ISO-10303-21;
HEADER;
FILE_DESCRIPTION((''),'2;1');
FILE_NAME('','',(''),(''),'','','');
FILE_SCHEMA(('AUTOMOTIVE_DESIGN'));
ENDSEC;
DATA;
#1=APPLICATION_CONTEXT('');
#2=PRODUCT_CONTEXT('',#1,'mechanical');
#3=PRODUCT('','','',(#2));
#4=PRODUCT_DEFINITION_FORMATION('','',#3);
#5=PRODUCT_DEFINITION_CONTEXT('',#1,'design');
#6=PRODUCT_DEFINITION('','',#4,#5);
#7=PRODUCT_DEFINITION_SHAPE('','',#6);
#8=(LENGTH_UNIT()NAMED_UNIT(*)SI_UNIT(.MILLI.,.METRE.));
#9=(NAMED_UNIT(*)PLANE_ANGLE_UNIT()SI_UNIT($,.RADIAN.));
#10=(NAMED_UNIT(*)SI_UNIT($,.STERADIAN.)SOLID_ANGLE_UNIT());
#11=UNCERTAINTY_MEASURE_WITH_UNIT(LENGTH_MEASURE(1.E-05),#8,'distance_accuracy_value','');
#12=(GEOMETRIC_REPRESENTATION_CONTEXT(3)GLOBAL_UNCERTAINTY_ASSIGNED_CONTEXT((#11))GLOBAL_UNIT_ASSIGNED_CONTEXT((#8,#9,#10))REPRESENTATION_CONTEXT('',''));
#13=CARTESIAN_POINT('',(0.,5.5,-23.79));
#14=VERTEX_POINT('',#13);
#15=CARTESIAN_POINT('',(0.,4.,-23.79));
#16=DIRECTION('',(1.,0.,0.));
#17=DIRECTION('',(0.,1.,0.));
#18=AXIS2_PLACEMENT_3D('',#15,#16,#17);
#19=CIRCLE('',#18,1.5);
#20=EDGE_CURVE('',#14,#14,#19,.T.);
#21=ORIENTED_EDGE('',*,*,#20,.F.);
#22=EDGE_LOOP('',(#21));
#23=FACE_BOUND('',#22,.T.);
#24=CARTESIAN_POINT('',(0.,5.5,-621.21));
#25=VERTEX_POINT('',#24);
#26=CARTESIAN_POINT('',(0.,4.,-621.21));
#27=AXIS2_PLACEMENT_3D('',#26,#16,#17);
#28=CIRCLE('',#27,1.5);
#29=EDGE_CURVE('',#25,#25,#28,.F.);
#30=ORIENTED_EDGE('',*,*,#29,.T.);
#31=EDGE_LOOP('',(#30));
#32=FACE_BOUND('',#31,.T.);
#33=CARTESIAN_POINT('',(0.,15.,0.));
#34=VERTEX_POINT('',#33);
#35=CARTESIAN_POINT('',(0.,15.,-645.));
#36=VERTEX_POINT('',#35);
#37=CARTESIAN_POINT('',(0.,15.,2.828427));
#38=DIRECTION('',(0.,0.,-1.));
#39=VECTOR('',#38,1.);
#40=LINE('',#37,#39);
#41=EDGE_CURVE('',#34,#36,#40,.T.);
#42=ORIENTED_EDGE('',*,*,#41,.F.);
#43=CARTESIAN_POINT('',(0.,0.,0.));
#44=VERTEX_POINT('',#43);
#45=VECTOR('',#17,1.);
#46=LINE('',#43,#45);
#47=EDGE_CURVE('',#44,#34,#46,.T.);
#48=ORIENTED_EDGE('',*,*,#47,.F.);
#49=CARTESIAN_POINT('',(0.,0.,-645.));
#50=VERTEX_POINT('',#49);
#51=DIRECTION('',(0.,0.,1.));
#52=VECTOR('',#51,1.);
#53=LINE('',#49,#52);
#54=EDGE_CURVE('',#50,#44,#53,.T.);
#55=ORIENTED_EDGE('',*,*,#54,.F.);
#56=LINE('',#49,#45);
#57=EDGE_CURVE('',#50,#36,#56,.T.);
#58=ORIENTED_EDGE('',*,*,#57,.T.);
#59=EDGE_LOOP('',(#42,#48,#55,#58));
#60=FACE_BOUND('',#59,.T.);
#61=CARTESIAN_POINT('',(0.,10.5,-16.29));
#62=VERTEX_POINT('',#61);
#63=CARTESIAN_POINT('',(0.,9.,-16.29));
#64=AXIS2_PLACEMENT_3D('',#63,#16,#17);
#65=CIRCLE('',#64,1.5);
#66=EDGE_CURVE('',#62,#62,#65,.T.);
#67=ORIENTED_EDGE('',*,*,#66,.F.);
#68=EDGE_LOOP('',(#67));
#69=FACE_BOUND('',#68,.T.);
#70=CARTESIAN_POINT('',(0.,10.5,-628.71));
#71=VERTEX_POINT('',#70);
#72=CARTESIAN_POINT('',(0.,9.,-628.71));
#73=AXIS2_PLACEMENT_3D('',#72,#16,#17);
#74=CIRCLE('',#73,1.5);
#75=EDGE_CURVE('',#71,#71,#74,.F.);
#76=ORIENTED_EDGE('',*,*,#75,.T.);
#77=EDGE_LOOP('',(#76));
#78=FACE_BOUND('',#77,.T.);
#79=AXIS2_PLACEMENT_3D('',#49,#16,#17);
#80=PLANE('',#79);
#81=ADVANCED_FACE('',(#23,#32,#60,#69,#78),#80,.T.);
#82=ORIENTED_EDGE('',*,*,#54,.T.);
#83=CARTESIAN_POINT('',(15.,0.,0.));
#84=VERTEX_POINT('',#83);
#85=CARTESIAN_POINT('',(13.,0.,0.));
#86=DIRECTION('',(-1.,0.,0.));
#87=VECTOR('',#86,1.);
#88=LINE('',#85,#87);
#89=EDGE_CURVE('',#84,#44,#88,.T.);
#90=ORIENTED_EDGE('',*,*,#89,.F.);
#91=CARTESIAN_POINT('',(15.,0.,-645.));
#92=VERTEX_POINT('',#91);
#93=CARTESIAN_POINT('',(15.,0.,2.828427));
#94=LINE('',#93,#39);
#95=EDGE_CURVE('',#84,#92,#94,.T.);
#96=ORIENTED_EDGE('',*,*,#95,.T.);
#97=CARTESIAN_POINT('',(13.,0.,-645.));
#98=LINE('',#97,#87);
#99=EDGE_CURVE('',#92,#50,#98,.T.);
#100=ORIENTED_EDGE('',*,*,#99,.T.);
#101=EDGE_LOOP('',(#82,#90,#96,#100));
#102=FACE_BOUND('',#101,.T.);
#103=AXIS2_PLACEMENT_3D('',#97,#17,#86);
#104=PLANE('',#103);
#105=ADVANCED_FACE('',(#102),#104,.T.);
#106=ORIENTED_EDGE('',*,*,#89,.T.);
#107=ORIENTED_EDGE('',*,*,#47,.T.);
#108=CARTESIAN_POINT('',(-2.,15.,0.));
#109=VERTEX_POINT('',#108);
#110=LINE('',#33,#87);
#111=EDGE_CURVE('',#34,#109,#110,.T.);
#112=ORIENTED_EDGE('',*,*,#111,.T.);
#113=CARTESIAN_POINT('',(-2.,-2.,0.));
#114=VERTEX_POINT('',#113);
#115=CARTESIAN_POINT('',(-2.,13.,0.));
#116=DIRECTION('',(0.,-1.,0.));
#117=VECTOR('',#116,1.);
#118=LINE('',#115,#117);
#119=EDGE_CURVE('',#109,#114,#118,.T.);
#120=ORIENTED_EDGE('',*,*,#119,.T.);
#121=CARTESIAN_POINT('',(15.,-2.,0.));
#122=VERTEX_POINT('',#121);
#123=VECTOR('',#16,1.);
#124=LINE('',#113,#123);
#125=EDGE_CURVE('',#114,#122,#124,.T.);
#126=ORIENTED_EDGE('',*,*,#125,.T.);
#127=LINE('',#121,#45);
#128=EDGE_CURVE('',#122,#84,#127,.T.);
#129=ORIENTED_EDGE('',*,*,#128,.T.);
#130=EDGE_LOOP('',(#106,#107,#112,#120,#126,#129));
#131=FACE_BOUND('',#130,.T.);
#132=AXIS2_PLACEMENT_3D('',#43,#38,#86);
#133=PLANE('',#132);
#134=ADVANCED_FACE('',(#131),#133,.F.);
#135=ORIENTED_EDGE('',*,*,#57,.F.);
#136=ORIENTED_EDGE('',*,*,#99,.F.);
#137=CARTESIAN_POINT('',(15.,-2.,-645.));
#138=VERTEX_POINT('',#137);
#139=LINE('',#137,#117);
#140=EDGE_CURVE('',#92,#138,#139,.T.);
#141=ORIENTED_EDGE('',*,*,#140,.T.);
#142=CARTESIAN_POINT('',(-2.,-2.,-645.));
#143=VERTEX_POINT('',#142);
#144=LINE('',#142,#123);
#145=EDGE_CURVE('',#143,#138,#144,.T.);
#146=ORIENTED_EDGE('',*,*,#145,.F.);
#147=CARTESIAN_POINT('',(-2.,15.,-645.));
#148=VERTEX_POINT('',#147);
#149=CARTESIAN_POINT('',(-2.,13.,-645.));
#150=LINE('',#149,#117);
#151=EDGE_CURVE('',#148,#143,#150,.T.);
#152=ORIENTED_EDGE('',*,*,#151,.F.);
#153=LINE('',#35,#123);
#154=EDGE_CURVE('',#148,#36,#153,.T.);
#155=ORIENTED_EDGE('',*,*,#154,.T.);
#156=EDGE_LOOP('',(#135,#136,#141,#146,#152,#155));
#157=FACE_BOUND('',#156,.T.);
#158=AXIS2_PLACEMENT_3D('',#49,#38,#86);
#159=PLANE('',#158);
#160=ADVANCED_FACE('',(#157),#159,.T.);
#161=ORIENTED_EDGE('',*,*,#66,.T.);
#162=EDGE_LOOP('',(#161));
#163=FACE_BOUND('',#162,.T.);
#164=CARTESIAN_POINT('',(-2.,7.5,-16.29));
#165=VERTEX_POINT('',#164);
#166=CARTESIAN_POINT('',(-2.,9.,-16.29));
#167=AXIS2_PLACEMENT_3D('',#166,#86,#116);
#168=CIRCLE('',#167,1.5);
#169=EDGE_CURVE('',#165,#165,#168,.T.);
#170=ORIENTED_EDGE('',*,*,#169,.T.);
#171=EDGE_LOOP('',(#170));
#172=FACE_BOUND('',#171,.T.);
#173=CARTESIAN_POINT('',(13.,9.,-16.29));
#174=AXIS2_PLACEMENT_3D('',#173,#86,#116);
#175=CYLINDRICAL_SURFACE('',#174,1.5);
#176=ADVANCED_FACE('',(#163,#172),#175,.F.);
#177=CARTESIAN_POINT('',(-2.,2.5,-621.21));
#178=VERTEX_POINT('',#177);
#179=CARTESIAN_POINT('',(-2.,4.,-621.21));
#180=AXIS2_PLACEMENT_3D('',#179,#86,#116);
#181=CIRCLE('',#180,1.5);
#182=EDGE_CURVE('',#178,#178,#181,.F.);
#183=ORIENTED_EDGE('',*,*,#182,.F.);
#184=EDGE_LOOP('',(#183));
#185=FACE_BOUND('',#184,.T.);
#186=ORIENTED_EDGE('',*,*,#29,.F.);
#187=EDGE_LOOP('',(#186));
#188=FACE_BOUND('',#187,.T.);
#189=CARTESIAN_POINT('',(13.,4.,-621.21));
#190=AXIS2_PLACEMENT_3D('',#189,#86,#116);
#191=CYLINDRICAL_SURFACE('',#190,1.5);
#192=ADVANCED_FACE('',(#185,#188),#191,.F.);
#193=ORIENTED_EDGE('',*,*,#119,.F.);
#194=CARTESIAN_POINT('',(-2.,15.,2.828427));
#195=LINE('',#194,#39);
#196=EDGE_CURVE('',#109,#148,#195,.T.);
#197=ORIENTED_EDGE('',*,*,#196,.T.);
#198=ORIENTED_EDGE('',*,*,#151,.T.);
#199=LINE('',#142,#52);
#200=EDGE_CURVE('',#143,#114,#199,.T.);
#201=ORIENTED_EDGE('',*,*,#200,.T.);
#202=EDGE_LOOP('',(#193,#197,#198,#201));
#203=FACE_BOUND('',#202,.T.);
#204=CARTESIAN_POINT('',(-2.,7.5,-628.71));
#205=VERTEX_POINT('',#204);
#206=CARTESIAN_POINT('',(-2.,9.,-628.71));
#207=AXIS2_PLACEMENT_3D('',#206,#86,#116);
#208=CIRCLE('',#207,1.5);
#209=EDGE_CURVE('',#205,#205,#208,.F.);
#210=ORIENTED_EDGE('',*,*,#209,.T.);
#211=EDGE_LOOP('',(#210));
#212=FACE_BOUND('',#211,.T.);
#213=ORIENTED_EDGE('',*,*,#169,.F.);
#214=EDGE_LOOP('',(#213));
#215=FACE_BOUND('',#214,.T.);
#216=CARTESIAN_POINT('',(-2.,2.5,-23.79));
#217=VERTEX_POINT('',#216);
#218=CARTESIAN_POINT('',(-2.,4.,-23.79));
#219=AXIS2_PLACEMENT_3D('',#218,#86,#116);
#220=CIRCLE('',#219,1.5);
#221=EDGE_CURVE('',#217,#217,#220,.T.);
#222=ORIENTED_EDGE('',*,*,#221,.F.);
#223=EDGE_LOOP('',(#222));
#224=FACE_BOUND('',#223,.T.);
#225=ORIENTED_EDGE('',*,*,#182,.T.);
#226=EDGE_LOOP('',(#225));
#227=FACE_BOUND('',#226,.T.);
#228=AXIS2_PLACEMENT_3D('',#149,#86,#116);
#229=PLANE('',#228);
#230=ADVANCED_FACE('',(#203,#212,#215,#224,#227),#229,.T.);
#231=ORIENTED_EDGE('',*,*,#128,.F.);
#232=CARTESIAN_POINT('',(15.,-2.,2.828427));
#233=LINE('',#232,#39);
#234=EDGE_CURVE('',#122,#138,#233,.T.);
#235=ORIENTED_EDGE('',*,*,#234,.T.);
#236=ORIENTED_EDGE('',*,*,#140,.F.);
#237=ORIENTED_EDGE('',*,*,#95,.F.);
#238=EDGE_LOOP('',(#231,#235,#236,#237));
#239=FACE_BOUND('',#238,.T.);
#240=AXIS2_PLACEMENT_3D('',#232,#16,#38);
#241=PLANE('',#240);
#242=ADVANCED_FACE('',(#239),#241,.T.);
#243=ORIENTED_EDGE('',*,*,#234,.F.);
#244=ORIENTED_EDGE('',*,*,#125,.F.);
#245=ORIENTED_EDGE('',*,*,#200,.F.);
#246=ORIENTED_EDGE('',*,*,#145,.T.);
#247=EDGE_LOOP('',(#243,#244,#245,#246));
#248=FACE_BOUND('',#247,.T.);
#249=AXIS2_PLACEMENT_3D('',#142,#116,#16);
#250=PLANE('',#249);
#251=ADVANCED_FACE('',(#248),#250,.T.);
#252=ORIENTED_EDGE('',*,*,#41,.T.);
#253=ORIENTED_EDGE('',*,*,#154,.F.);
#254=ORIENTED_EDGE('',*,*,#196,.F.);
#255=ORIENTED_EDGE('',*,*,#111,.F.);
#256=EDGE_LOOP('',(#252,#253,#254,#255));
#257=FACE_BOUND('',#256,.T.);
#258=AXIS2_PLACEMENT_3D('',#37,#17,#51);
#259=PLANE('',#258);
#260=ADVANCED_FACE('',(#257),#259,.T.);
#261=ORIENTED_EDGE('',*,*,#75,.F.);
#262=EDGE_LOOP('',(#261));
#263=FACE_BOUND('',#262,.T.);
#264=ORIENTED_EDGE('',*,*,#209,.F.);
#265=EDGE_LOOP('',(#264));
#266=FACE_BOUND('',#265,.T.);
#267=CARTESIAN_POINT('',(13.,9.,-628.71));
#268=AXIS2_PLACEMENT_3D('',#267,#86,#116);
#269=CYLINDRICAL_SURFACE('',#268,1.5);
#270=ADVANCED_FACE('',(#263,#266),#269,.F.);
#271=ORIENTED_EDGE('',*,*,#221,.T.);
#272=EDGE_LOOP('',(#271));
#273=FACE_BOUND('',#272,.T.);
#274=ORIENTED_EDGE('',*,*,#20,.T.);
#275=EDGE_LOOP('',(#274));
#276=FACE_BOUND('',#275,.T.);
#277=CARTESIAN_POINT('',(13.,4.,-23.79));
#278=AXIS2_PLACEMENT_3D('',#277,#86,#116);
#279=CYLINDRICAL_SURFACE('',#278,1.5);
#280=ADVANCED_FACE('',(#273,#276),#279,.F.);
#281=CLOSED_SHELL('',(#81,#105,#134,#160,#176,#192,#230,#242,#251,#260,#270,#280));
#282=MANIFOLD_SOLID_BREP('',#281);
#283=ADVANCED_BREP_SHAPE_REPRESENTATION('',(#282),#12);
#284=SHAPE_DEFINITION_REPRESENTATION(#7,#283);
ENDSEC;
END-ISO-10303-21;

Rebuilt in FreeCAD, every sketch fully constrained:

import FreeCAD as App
import Part
import Sketcher

doc = App.newDocument("Part")
body = doc.addObject("PartDesign::Body", "Body")

sketch1 = body.newObject("Sketcher::SketchObject", "Sketch")
sketch1.AttachmentSupport = (doc.getObject("XY_Plane"), [""])
sketch1.MapMode = "FlatFace"
sketch1.addGeometry([
    Part.LineSegment(App.Vector(0, 0, 0), App.Vector(0, 13, 0)),
    Part.LineSegment(App.Vector(0, 13, 0), App.Vector(-2, 13, 0)),
    Part.LineSegment(App.Vector(-2, 13, 0), App.Vector(-2, -2, 0)),
    Part.LineSegment(App.Vector(-2, -2, 0), App.Vector(13, -2, 0)),
    Part.LineSegment(App.Vector(13, -2, 0), App.Vector(13, 0, 0)),
    Part.LineSegment(App.Vector(13, 0, 0), App.Vector(0, 0, 0)),
], False)
sketch1.addConstraint([
    Sketcher.Constraint("Coincident", 0, 2, 1, 1),
    Sketcher.Constraint("Coincident", 1, 2, 2, 1),
    Sketcher.Constraint("Coincident", 2, 2, 3, 1),
    Sketcher.Constraint("Coincident", 3, 2, 4, 1),
    Sketcher.Constraint("Coincident", 4, 2, 5, 1),
    Sketcher.Constraint("Coincident", 5, 2, 0, 1),
    Sketcher.Constraint("Vertical", 0),
    Sketcher.Constraint("Horizontal", 1),
    Sketcher.Constraint("Vertical", 2),
    Sketcher.Constraint("Horizontal", 3),
    Sketcher.Constraint("Vertical", 4),
    Sketcher.Constraint("Horizontal", 5),
    Sketcher.Constraint("Coincident", 5, 2, -1, 1),
    Sketcher.Constraint("Equal", 5, 0),
    Sketcher.Constraint("Equal", 3, 2),
    Sketcher.Constraint("DistanceX", 1, 2, 1, 1, 2.0),
    Sketcher.Constraint("DistanceX", 3, 1, 3, 2, 15.0),
])
pad1 = body.newObject("PartDesign::Pad", "Pad")
pad1.Profile = sketch1
pad1.Length = 645
pad1.Reversed = True

sketch2 = body.newObject("Sketcher::SketchObject", "Sketch001")
sketch2.AttachmentSupport = (doc.getObject("YZ_Plane"), [""])
sketch2.MapMode = "FlatFace"
sketch2.AttachmentOffset = App.Placement(App.Vector(0, 0, -2), App.Rotation())
sketch2.addGeometry([
    Part.Circle(App.Vector(4, -23.79, 0), App.Vector(0, 0, 1), 1.5),
    Part.Circle(App.Vector(9, -16.29, 0), App.Vector(0, 0, 1), 1.5),
    Part.Circle(App.Vector(9, -628.71, 0), App.Vector(0, 0, 1), 1.5),
    Part.Circle(App.Vector(4, -621.21, 0), App.Vector(0, 0, 1), 1.5),
], False)
sketch2.addConstraint([
    Sketcher.Constraint("Equal", 0, 1),
    Sketcher.Constraint("Equal", 1, 2),
    Sketcher.Constraint("Equal", 2, 3),
    Sketcher.Constraint("Vertical", 1, 3, 2, 3),
    Sketcher.Constraint("Vertical", 0, 3, 3, 3),
    Sketcher.Constraint("Diameter", 0, 3.0),
    Sketcher.Constraint("DistanceX", -1, 1, 0, 3, 4.0),
    Sketcher.Constraint("DistanceX", -1, 1, 1, 3, 9.0),
    Sketcher.Constraint("DistanceY", 0, 3, 1, 3, 7.5),
    Sketcher.Constraint("DistanceY", 2, 3, 3, 3, 7.5),
    Sketcher.Constraint("DistanceY", 0, 3, -1, 1, 23.79),
    Sketcher.Constraint("DistanceY", 2, 3, -1, 1, 628.71),
])
pocket1 = body.newObject("PartDesign::Pocket", "Pocket")
pocket1.Profile = sketch2
pocket1.Type = "ThroughAll"
pocket1.Reversed = True

sketch3 = body.newObject("Sketcher::SketchObject", "Sketch002")
sketch3.AttachmentSupport = (doc.getObject("XY_Plane"), [""])
sketch3.MapMode = "FlatFace"
sketch3.AttachmentOffset = App.Placement(App.Vector(0, 0, -645), App.Rotation())
sketch3.addGeometry([
    Part.LineSegment(App.Vector(15, 0, 0), App.Vector(15, -2, 0)),
    Part.LineSegment(App.Vector(15, -2, 0), App.Vector(13, -2, 0)),
    Part.LineSegment(App.Vector(13, -2, 0), App.Vector(13, 0, 0)),
    Part.LineSegment(App.Vector(13, 0, 0), App.Vector(15, 0, 0)),
    Part.LineSegment(App.Vector(0, 15, 0), App.Vector(0, 13, 0)),
    Part.LineSegment(App.Vector(0, 13, 0), App.Vector(-2, 13, 0)),
    Part.LineSegment(App.Vector(-2, 13, 0), App.Vector(-2, 15, 0)),
    Part.LineSegment(App.Vector(-2, 15, 0), App.Vector(0, 15, 0)),
], False)
sketch3.addConstraint([
    Sketcher.Constraint("Coincident", 0, 2, 1, 1),
    Sketcher.Constraint("Coincident", 1, 2, 2, 1),
    Sketcher.Constraint("Coincident", 2, 2, 3, 1),
    Sketcher.Constraint("Coincident", 3, 2, 0, 1),
    Sketcher.Constraint("Coincident", 4, 2, 5, 1),
    Sketcher.Constraint("Coincident", 5, 2, 6, 1),
    Sketcher.Constraint("Coincident", 6, 2, 7, 1),
    Sketcher.Constraint("Coincident", 7, 2, 4, 1),
    Sketcher.Constraint("Vertical", 0),
    Sketcher.Constraint("Horizontal", 1),
    Sketcher.Constraint("Vertical", 2),
    Sketcher.Constraint("Horizontal", 3),
    Sketcher.Constraint("Vertical", 4),
    Sketcher.Constraint("Horizontal", 5),
    Sketcher.Constraint("Vertical", 6),
    Sketcher.Constraint("Horizontal", 7),
    Sketcher.Constraint("PointOnObject", 2, 2, -1),
    Sketcher.Constraint("PointOnObject", 4, 2, -2),
    Sketcher.Constraint("Equal", 3, 5),
    Sketcher.Constraint("Equal", 7, 0),
    Sketcher.Constraint("Equal", 2, 4),
    Sketcher.Constraint("DistanceX", 1, 2, 1, 1, 2.0),
    Sketcher.Constraint("DistanceX", -1, 1, 0, 2, 15.0),
    Sketcher.Constraint("DistanceY", -1, 1, 4, 2, 13.0),
])
pad2 = body.newObject("PartDesign::Pad", "Pad001")
pad2.Profile = sketch3
pad2.Length = 645

doc.recompute()
